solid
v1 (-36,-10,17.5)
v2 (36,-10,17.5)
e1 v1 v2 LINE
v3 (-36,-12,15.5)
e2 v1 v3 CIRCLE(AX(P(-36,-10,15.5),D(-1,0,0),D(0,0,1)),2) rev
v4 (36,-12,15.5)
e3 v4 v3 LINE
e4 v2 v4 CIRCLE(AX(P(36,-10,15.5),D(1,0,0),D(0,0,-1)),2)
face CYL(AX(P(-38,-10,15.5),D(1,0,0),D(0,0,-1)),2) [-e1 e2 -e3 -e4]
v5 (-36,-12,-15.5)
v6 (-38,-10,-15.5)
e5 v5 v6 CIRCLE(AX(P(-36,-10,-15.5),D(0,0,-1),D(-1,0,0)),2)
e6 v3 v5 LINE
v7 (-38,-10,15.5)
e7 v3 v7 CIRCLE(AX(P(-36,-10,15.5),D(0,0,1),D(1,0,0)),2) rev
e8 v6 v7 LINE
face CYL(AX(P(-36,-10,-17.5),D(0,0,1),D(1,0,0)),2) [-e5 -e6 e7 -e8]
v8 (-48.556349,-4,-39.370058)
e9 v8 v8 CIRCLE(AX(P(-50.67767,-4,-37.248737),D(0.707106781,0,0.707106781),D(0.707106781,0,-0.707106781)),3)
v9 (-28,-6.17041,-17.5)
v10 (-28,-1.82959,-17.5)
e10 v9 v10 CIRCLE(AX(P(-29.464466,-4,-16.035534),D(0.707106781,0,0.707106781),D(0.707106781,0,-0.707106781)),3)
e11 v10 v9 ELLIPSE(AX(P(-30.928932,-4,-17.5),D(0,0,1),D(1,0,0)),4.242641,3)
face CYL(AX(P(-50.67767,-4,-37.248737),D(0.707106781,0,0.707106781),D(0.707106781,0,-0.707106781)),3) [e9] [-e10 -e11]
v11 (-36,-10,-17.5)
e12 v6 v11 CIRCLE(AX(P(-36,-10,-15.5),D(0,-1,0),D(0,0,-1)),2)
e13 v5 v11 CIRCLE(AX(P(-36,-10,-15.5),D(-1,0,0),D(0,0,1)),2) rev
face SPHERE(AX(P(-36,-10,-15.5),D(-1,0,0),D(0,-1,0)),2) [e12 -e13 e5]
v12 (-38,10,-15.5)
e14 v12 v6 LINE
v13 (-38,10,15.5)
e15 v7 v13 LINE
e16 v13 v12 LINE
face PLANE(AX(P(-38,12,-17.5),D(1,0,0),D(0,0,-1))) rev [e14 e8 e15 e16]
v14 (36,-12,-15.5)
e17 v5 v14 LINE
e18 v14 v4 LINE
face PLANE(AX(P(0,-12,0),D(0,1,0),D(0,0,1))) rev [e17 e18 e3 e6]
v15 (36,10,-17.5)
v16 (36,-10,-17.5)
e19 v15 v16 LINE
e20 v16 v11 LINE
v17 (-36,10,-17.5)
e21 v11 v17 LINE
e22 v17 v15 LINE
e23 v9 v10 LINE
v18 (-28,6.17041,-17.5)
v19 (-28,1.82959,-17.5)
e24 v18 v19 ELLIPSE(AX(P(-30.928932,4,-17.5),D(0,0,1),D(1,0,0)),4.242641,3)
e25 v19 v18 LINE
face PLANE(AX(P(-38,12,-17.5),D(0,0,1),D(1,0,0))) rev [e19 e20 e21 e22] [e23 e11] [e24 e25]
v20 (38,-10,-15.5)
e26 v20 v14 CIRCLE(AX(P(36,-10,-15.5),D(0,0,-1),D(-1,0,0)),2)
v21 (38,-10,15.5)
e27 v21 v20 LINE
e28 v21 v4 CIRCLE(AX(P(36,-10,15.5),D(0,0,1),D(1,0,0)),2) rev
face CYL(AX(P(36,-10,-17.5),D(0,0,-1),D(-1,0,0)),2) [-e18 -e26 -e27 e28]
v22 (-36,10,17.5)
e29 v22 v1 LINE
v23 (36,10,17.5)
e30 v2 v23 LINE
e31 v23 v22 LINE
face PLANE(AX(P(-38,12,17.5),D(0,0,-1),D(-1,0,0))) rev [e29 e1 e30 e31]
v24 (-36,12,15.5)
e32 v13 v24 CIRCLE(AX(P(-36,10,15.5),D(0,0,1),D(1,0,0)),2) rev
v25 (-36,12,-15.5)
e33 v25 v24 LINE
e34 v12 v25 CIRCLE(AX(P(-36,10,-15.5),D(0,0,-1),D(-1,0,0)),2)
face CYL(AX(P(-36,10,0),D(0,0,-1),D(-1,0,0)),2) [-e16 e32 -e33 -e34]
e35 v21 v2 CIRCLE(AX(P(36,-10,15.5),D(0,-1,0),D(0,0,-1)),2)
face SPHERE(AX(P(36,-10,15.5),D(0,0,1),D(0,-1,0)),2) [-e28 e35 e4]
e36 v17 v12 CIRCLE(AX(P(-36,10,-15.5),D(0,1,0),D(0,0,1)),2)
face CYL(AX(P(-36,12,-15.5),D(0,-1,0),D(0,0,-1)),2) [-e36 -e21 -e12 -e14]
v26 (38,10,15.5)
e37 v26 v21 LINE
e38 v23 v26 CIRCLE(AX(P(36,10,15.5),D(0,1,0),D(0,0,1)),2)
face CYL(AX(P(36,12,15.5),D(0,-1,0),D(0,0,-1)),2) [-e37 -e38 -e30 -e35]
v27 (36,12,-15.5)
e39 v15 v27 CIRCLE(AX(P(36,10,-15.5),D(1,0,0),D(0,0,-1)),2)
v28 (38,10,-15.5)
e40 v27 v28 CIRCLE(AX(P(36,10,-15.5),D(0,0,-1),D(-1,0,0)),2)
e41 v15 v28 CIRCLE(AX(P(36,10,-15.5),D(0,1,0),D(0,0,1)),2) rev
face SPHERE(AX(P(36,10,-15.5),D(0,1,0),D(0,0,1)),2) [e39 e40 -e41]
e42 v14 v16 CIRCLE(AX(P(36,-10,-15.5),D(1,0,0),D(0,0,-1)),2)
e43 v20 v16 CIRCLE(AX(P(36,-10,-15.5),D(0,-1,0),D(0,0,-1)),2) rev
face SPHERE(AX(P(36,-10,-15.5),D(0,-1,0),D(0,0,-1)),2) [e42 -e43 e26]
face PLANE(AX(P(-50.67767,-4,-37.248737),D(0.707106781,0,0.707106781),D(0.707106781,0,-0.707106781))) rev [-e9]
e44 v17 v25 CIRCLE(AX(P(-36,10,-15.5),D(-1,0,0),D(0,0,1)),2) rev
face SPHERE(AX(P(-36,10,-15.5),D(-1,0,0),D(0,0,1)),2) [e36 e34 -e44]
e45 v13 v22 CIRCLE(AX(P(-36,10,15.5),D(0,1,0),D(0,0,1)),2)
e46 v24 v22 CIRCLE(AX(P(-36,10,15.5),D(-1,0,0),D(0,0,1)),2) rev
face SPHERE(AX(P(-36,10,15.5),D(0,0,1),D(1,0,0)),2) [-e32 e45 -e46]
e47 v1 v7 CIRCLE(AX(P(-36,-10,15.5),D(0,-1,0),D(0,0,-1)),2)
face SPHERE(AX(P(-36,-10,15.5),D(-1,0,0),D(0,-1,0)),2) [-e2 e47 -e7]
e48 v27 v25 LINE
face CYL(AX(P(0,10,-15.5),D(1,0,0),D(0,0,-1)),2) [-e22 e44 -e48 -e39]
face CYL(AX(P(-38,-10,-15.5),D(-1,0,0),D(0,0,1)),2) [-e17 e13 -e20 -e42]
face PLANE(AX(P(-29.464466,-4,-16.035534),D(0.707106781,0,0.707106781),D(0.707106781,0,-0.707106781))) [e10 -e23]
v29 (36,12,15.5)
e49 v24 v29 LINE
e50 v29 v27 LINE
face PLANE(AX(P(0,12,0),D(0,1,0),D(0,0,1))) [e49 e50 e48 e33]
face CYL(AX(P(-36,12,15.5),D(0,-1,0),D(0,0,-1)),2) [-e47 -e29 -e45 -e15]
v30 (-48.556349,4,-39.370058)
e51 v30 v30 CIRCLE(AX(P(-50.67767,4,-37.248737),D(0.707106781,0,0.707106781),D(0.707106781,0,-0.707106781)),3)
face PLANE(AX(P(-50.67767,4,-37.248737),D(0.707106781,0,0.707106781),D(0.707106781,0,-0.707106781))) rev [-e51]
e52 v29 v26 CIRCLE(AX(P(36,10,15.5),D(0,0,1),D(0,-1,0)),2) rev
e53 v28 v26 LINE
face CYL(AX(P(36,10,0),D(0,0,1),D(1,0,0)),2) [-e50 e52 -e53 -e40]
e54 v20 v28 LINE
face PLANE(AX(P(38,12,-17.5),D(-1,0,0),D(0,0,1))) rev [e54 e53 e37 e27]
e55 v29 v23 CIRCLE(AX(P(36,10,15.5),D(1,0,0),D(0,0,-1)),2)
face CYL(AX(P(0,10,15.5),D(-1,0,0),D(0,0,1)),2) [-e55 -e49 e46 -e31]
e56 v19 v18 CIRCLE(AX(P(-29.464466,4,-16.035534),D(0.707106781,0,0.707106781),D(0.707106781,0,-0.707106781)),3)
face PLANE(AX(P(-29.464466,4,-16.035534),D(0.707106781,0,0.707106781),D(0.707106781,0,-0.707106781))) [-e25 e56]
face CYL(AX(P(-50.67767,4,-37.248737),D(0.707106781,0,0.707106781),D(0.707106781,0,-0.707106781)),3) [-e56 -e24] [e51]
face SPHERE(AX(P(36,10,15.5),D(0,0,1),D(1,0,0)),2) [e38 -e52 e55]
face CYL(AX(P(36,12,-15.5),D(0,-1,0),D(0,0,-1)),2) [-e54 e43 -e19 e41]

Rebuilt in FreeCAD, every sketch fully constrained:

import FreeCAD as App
import Part
import Sketcher

V = App.Vector


def edges_at(feature, points):
    """Names of the edges that pass closest to the given points."""
    edges = feature.Shape.Edges
    near = lambda p: min(range(len(edges)), key=lambda i: edges[i].distToShape(Part.Vertex(*p))[0])
    return sorted({f"Edge{near(p) + 1}" for p in points})


def add_polygon(sketch, points):
    """Adds a closed chain of lines whose ends are joined by coincident constraints."""
    first, n = sketch.GeometryCount, len(points)
    for a, b in zip(points, points[1:] + points[:1]):
        sketch.addGeometry(Part.LineSegment(App.Vector(*a, 0), App.Vector(*b, 0)), False)
    for i in range(n):
        sketch.addConstraint(Sketcher.Constraint("Coincident", first + i, 2, first + (i + 1) % n, 1))

doc = App.newDocument("Part")
params = doc.addObject("Spreadsheet::Sheet", "Params")
for row, (alias, value) in enumerate([
    ("sketch1_width", "76 mm"),
    ("sketch1_height", "35 mm"),
    ("pad1_length", "24 mm"),
    ("sketch2_diameter", "6 mm"),
    ("pad2_length", "30 mm"),
    ("fillet_radius", "2 mm"),
], start=1):
    params.set(f"A{row}", alias)
    params.set(f"B{row}", "=" + value)
    params.setAlias(f"B{row}", alias)

body = doc.addObject("PartDesign::Body", "Body")

sketch1 = body.newObject("Sketcher::SketchObject", "Sketch")
sketch1.AttachmentSupport = (doc.getObject("XZ_Plane"), [""])
sketch1.MapMode = "FlatFace"
add_polygon(sketch1, [(-38, -18), (-38, 18), (38, 18), (38, -18)])
sketch1.addConstraint([
    Sketcher.Constraint("Vertical", 0),
    Sketcher.Constraint("Horizontal", 1),
    Sketcher.Constraint("Vertical", 2),
    Sketcher.Constraint("Horizontal", 3),
    Sketcher.Constraint("Symmetric", 0, 2, 2, 2, -1, 1),
    Sketcher.Constraint("DistanceX", 1, 1, 1, 2, 76.0),
    Sketcher.Constraint("DistanceY", 0, 1, 0, 2, 35.0),
])
sketch1.setExpression("Constraints[9]", "Params.sketch1_width")
sketch1.setExpression("Constraints[10]", "Params.sketch1_height")
pad1 = body.newObject("PartDesign::Pad", "Pad")
pad1.Profile = sketch1
pad1.setExpression("Length", "Params.pad1_length")
pad1.Midplane = True

sketch2 = body.newObject("Sketcher::SketchObject", "Sketch001")
sketch2.Placement = App.Placement(V(-22.75, 0, -22.75), App.Rotation(V(0.707106781, 0, -0.707106781), V(0, 0.999999999, 0), V(0.707106781, 0, 0.707106781), "ZXY"))
sketch2.addGeometry([
    Part.Circle(V(-9.5, 4, 0), V(0, 0, 1), 3),
    Part.Circle(V(-9.5, -4, 0), V(0, 0, 1), 3),
], False)
sketch2.addConstraint([
    Sketcher.Constraint("Equal", 0, 1),
    Sketcher.Constraint("Symmetric", 0, 3, 1, 3, -1),
    Sketcher.Constraint("Diameter", 0, 6.0),
    Sketcher.Constraint("DistanceY", -1, 1, 0, 3, 4.0),
    Sketcher.Constraint("DistanceX", 0, 3, -1, 1, 9.495689),
])
sketch2.setExpression("Constraints[2]", "Params.sketch2_diameter")
pad2 = body.newObject("PartDesign::Pad", "Pad001")
pad2.Profile = sketch2
pad2.setExpression("Length", "Params.pad2_length")
pad2.Reversed = True
doc.recompute()

fillet = body.newObject("PartDesign::Fillet", "Fillet")
fillet.Base = (pad2, edges_at(pad2, [
    (-38, 12, 0),
    (0, 12, 17.5),
    (38, 12, 0),
    (0, -12, 17.5),
    (-38, -12, 0),
    (0, -12, -17.5),
    (38, -12, 0),
    (38, 0, 17.5),
    (-38, 0, 17.5),
    (-38, 0, -17.5),
    (38, 0, -17.5),
    (0, 12, -17.5),
]))
fillet.setExpression("Radius", "Params.fillet_radius")

doc.recompute()
